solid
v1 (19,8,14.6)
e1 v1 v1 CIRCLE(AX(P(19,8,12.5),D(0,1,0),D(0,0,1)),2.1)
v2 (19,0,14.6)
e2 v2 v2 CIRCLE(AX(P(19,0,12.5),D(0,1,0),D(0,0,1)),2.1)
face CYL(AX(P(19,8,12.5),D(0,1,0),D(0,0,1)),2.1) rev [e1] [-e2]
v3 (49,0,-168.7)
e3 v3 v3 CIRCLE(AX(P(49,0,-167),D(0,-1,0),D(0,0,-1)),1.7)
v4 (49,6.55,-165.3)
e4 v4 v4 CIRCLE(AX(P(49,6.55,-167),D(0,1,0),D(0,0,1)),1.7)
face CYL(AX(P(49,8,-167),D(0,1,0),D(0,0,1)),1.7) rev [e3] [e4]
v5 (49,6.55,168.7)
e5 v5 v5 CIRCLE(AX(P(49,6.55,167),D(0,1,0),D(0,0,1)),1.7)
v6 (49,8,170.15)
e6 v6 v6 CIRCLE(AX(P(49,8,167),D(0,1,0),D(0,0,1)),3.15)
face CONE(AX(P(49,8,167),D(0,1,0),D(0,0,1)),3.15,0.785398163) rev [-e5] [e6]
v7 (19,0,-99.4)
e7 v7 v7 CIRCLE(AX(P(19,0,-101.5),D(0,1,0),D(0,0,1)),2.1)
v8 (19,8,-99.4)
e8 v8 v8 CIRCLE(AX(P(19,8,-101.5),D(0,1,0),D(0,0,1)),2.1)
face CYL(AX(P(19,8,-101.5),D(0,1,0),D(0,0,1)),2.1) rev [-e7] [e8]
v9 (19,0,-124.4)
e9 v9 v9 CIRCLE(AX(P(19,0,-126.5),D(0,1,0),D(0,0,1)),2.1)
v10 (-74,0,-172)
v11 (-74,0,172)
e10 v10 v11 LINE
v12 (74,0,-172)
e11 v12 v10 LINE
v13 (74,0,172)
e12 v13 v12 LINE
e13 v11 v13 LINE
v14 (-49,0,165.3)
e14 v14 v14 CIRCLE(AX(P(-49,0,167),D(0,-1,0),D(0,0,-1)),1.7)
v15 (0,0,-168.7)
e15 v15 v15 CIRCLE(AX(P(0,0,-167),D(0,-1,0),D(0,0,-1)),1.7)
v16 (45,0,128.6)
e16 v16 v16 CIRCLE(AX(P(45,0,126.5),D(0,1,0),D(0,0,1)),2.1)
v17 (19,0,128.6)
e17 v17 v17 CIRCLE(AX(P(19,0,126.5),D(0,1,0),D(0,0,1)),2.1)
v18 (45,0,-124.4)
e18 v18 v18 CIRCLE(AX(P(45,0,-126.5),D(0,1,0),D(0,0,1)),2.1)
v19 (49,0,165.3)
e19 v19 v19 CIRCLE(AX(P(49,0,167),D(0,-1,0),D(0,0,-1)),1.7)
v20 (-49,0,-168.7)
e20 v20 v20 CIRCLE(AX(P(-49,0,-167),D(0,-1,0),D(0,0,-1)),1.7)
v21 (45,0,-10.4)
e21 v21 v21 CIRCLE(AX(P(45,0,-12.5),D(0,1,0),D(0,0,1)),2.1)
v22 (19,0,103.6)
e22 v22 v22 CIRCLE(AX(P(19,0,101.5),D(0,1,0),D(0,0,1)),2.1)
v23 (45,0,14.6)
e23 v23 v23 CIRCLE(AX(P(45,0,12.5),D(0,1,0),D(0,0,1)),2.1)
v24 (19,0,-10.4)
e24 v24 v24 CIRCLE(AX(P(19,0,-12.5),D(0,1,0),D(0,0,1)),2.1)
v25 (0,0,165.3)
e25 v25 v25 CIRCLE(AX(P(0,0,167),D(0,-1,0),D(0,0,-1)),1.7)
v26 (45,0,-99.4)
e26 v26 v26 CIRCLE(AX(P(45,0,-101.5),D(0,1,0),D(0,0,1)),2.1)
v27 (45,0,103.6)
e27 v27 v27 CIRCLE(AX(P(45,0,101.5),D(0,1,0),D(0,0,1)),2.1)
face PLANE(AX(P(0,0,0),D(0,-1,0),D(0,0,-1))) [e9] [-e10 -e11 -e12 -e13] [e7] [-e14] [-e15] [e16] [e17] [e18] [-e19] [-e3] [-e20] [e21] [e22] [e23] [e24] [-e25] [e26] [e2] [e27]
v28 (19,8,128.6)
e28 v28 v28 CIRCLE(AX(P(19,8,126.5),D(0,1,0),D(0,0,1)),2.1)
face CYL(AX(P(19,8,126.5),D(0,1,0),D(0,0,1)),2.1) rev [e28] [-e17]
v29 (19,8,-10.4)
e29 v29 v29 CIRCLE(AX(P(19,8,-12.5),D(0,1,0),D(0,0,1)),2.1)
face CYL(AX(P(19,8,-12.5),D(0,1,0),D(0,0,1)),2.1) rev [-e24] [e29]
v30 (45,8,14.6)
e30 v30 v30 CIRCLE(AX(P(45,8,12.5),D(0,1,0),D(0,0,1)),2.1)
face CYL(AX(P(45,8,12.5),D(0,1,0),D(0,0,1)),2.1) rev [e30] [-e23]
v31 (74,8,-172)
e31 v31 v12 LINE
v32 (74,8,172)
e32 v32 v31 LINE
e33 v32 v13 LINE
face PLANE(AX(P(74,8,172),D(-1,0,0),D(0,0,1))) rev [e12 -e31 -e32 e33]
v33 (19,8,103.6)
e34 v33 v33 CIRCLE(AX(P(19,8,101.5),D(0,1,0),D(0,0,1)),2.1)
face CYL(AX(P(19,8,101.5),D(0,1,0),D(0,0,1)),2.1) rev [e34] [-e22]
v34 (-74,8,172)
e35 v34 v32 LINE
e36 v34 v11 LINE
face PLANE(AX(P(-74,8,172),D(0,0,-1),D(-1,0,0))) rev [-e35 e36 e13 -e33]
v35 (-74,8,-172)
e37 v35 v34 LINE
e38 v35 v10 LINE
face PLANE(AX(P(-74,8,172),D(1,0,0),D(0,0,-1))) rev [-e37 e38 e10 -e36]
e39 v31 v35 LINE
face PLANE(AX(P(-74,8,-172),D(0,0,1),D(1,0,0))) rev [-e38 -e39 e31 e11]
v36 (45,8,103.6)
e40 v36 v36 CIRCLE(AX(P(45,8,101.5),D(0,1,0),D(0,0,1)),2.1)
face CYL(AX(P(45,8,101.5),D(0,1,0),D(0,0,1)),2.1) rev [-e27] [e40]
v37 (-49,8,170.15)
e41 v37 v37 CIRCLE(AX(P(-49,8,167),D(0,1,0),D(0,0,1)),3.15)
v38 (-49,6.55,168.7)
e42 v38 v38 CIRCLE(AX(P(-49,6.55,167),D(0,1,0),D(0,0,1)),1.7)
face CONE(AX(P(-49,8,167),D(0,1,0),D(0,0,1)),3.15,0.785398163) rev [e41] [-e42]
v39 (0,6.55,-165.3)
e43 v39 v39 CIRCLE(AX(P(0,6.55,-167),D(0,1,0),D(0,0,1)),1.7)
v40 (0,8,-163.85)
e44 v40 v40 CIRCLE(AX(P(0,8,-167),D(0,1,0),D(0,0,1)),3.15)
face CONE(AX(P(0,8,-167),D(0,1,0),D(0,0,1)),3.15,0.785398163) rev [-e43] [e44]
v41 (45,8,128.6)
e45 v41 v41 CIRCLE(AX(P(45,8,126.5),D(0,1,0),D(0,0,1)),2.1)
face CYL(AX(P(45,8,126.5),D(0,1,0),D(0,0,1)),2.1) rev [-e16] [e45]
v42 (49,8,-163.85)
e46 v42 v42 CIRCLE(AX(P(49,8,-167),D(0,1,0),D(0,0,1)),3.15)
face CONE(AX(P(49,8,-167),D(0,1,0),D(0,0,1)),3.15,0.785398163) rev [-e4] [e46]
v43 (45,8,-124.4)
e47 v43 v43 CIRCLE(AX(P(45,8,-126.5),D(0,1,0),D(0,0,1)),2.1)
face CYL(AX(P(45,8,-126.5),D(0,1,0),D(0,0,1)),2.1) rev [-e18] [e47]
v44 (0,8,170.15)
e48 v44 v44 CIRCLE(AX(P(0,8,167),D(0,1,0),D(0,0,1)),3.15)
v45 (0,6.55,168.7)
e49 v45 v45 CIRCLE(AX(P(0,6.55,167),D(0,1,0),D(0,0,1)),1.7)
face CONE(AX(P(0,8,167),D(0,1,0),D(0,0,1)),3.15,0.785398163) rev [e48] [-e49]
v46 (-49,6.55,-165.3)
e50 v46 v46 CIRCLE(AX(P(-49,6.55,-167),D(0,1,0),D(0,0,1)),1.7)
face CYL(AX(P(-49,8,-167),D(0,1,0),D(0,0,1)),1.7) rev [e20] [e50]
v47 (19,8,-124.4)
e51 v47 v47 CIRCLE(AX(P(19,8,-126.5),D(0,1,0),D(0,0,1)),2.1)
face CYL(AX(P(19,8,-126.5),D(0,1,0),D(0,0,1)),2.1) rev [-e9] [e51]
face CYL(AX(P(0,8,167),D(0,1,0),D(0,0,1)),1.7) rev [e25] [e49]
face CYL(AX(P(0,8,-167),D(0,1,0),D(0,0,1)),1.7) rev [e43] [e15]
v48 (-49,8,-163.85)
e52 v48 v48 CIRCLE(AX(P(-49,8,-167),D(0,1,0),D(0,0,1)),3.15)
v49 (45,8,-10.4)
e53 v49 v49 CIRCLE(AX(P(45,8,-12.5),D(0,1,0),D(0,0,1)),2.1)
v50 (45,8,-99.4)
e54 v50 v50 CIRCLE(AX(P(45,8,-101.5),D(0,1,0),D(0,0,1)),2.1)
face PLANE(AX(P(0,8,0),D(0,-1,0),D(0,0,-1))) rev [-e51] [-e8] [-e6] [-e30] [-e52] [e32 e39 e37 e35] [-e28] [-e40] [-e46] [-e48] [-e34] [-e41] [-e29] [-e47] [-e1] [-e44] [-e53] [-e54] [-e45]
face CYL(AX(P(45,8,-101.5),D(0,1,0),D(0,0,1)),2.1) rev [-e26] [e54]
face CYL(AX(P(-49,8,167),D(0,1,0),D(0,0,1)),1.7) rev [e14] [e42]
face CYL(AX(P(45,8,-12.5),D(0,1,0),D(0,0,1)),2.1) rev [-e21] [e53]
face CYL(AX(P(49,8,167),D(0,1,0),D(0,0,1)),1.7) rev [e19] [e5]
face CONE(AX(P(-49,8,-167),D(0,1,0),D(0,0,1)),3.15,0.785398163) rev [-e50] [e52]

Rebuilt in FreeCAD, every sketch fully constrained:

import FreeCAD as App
import Part
import Sketcher
from FreeCAD import Vector
Q = App.Units.Quantity


def add_polygon(sketch, points):
    """Adds a closed chain of lines whose ends are joined by coincident constraints."""
    first, n = sketch.GeometryCount, len(points)
    for a, b in zip(points, points[1:] + points[:1]):
        sketch.addGeometry(Part.LineSegment(App.Vector(*a, 0), App.Vector(*b, 0)), False)
    for i in range(n):
        sketch.addConstraint(Sketcher.Constraint("Coincident", first + i, 2, first + (i + 1) % n, 1))

doc = App.newDocument("Part")
params = doc.addObject("Spreadsheet::Sheet", "Params")
for row, (alias, value) in enumerate([
    ("sketch1_width", "148 mm"),
    ("sketch1_height", "344 mm"),
    ("pad1_length", "8 mm"),
    ("sketch2_width", "13.55 mm"),
    ("sketch2_height", "3.15 mm"),
    ("groove_angle", "360 deg"),
    ("linearpattern_pitch", "49 mm"),
    ("linearpattern2_pitch", "98 mm"),
    ("sketch3_width", "13.55 mm"),
    ("sketch3_height", "3.15 mm"),
    ("groove2_angle", "360 deg"),
    ("sketch4_width", "13.55 mm"),
    ("sketch4_height", "3.15 mm"),
    ("groove3_angle", "360 deg"),
    ("sketch5_diameter", "4.2 mm"),
    ("hole_diameter", "4.2 mm"),
    ("linearpattern3_pitch", "114 mm"),
    ("linearpattern4_pitch", "114 mm"),
], start=1):
    params.set(f"A{row}", alias)
    params.set(f"B{row}", "=" + value)
    params.setAlias(f"B{row}", alias)

body = doc.addObject("PartDesign::Body", "Body")

# Sketch on XZ plane
sketch1 = body.newObject("Sketcher::SketchObject", "Sketch")
sketch1.AttachmentSupport = (doc.getObject("XZ_Plane"), [""])
sketch1.MapMode = "FlatFace"
add_polygon(sketch1, [(-74, -172), (-74, 172), (74, 172), (74, -172)])  # lines 0-3
sketch1.addConstraint([
    Sketcher.Constraint("Vertical", 0),
    Sketcher.Constraint("Horizontal", 1),
    Sketcher.Constraint("Vertical", 2),
    Sketcher.Constraint("Horizontal", 3),
    Sketcher.Constraint("Symmetric", 0, 2, 2, 2, -1, 1),
    Sketcher.Constraint("DistanceX", 1, 1, 1, 2, Q("148 mm")),
    Sketcher.Constraint("DistanceY", 0, 1, 0, 2, Q("344 mm")),
])
sketch1.setExpression("Constraints[9]", "Params.sketch1_width")
sketch1.setExpression("Constraints[10]", "Params.sketch1_height")
pad1 = body.newObject("PartDesign::Pad", "Pad")
pad1.Profile = sketch1
pad1.setExpression("Length", "Params.pad1_length")
pad1.Reversed = True

# Sketch on YZ plane
sketch2 = body.newObject("Sketcher::SketchObject", "Sketch001")
sketch2.AttachmentSupport = (doc.getObject("YZ_Plane"), [""])
sketch2.MapMode = "FlatFace"
sketch2.AttachmentOffset = App.Placement(Vector(0, 0, -49), App.Rotation())
add_polygon(sketch2, [(-8, 167), (8, 167), (8, 170.2), (6.5, 168.7), (-7, 168.7)])  # lines 0-4
sketch2.addGeometry(Part.LineSegment(Vector(8, 167, 0), Vector(-8, 167, 0)), True)  # axis
sketch2.addConstraint([
    Sketcher.Constraint("Horizontal", 0),
    Sketcher.Constraint("Vertical", 1),
    Sketcher.Constraint("Horizontal", 3),
    Sketcher.Constraint("Horizontal", 5),
    Sketcher.Constraint("Coincident", 5, 1, 0, 2),
    Sketcher.Constraint("Equal", 0, 5),
    Sketcher.Constraint("Angle", 2, Q("-135 deg")),
    Sketcher.Constraint("Angle", 4, Q("-121 deg")),
    Sketcher.Constraint("DistanceX", -1, 1, 0, 2, Q("8 mm")),
    Sketcher.Constraint("DistanceY", -1, 1, 0, 2, Q("167 mm")),
    Sketcher.Constraint("DistanceX", 3, 2, -1, 1, Q("7 mm")),
    Sketcher.Constraint("DistanceX", 3, 2, 3, 1, Q("13.55 mm")),
    Sketcher.Constraint("DistanceY", 1, 1, 1, 2, Q("3.15 mm")),
])
sketch2.setExpression("Constraints[16]", "Params.sketch2_width")
sketch2.setExpression("Constraints[17]", "Params.sketch2_height")
groove = body.newObject("PartDesign::Groove", "Groove")
groove.Profile = sketch2
groove.ReferenceAxis = (sketch2, ["Axis0"])
groove.setExpression("Angle", "Params.groove_angle")
doc.recompute()

linearpattern = body.newObject("PartDesign::LinearPattern", "LinearPattern")
linearpattern.Originals = [groove]
linearpattern.Direction = (doc.getObject("X_Axis"), [""])
linearpattern.Mode = "offset"
linearpattern.setExpression("Offset", "Params.linearpattern_pitch")
linearpattern.Occurrences = 2
body.Tip = linearpattern
doc.recompute()

linearpattern2 = body.newObject("PartDesign::LinearPattern", "LinearPattern001")
linearpattern2.Originals = [groove]
linearpattern2.Direction = (doc.getObject("X_Axis"), [""])
linearpattern2.Mode = "offset"
linearpattern2.setExpression("Offset", "Params.linearpattern2_pitch")
linearpattern2.Occurrences = 2
body.Tip = linearpattern2
doc.recompute()

mirrored = body.newObject("PartDesign::Mirrored", "Mirrored")
mirrored.Originals = [groove]
mirrored.MirrorPlane = (doc.getObject("XY_Plane"), [""])
body.Tip = mirrored

# Sketch on YZ plane
sketch3 = body.newObject("Sketcher::SketchObject", "Sketch002")
sketch3.AttachmentSupport = (doc.getObject("YZ_Plane"), [""])
sketch3.MapMode = "FlatFace"
add_polygon(sketch3, [(8, -167), (-8, -167), (-7, -168.7), (6.5, -168.7), (8, -170.2)])  # lines 0-4
sketch3.addGeometry(Part.LineSegment(Vector(-8, -167, 0), Vector(8, -167, 0)), True)  # axis
sketch3.addConstraint([
    Sketcher.Constraint("Horizontal", 0),
    Sketcher.Constraint("Horizontal", 2),
    Sketcher.Constraint("Vertical", 4),
    Sketcher.Constraint("Horizontal", 5),
    Sketcher.Constraint("Coincident", 5, 1, 0, 2),
    Sketcher.Constraint("Vertical", 3, 2, 5, 2),
    Sketcher.Constraint("Angle", 1, Q("-59 deg")),
    Sketcher.Constraint("Angle", 3, Q("-45 deg")),
    Sketcher.Constraint("DistanceY", 0, 2, -1, 1, Q("167 mm")),
    Sketcher.Constraint("DistanceX", 1, 2, -1, 1, Q("7 mm")),
    Sketcher.Constraint("DistanceX", -1, 1, 3, 2, Q("8 mm")),
    Sketcher.Constraint("DistanceX", 2, 1, 2, 2, Q("13.55 mm")),
    Sketcher.Constraint("DistanceY", 4, 1, 4, 2, Q("3.15 mm")),
])
sketch3.setExpression("Constraints[16]", "Params.sketch3_width")
sketch3.setExpression("Constraints[17]", "Params.sketch3_height")
groove2 = body.newObject("PartDesign::Groove", "Groove001")
groove2.Profile = sketch3
groove2.ReferenceAxis = (sketch3, ["Axis0"])
groove2.setExpression("Angle", "Params.groove2_angle")

# Sketch on YZ plane
sketch4 = body.newObject("Sketcher::SketchObject", "Sketch003")
sketch4.AttachmentSupport = (doc.getObject("YZ_Plane"), [""])
sketch4.MapMode = "FlatFace"
sketch4.AttachmentOffset = App.Placement(Vector(0, 0, 49), App.Rotation())
add_polygon(sketch4, [(8, -167), (-8, -167), (-7, -168.7), (6.5, -168.7), (8, -170.2)])  # lines 0-4
sketch4.addGeometry(Part.LineSegment(Vector(-8, -167, 0), Vector(8, -167, 0)), True)  # axis
sketch4.addConstraint([
    Sketcher.Constraint("Horizontal", 0),
    Sketcher.Constraint("Horizontal", 2),
    Sketcher.Constraint("Vertical", 4),
    Sketcher.Constraint("Horizontal", 5),
    Sketcher.Constraint("Coincident", 5, 1, 0, 2),
    Sketcher.Constraint("Vertical", 3, 2, 5, 2),
    Sketcher.Constraint("Angle", 1, Q("-59 deg")),
    Sketcher.Constraint("Angle", 3, Q("-45 deg")),
    Sketcher.Constraint("DistanceY", 0, 2, -1, 1, Q("167 mm")),
    Sketcher.Constraint("DistanceX", 1, 2, -1, 1, Q("7 mm")),
    Sketcher.Constraint("DistanceX", -1, 1, 3, 2, Q("8 mm")),
    Sketcher.Constraint("DistanceX", 2, 1, 2, 2, Q("13.55 mm")),
    Sketcher.Constraint("DistanceY", 4, 1, 4, 2, Q("3.15 mm")),
])
sketch4.setExpression("Constraints[16]", "Params.sketch4_width")
sketch4.setExpression("Constraints[17]", "Params.sketch4_height")
groove3 = body.newObject("PartDesign::Groove", "Groove002")
groove3.Profile = sketch4
groove3.ReferenceAxis = (sketch4, ["Axis0"])
groove3.setExpression("Angle", "Params.groove3_angle")

# Sketch on XZ plane
sketch5 = body.newObject("Sketcher::SketchObject", "Sketch004")
sketch5.AttachmentSupport = (doc.getObject("XZ_Plane"), [""])
sketch5.MapMode = "FlatFace"
sketch5.AttachmentOffset = App.Placement(Vector(0, 0, -8), App.Rotation())
sketch5.addGeometry([
    Part.Circle(Vector(45, -12.5, 0), Vector(0, 0, 1), 2.1),
    Part.Circle(Vector(19, -12.5, 0), Vector(0, 0, 1), 2.1),
    Part.Circle(Vector(19, 12.5, 0), Vector(0, 0, 1), 2.1),
    Part.Circle(Vector(45, 12.5, 0), Vector(0, 0, 1), 2.1),
], False)
sketch5.addConstraint([
    Sketcher.Constraint("Equal", 0, 1),
    Sketcher.Constraint("Equal", 1, 2),
    Sketcher.Constraint("Equal", 2, 3),
    Sketcher.Constraint("Symmetric", 1, 3, 2, 3, -1),
    Sketcher.Constraint("Symmetric", 0, 3, 3, 3, -1),
    Sketcher.Constraint("Horizontal", 0, 3, 1, 3),
    Sketcher.Constraint("Diameter", 0, Q("4.2 mm")),
    Sketcher.Constraint("DistanceX", -1, 1, 0, 3, Q("45 mm")),
    Sketcher.Constraint("DistanceX", -1, 1, 1, 3, Q("19 mm")),
    Sketcher.Constraint("DistanceY", 1, 3, 2, 3, Q("25 mm")),
])
sketch5.setExpression("Constraints[6]", "Params.sketch5_diameter")
doc.recompute()
hole = body.newObject("PartDesign::Hole", "Hole")
hole.Profile = sketch5
hole.ThreadType = "None"
hole.setExpression("Diameter", "Params.hole_diameter")
hole.DepthType = "ThroughAll"
hole.Reversed = True
doc.recompute()

linearpattern3 = body.newObject("PartDesign::LinearPattern", "LinearPattern002")
linearpattern3.Originals = [hole]
linearpattern3.Direction = (doc.getObject("Z_Axis"), [""])
linearpattern3.Mode = "offset"
linearpattern3.setExpression("Offset", "Params.linearpattern3_pitch")
linearpattern3.Occurrences = 2
body.Tip = linearpattern3
doc.recompute()

linearpattern4 = body.newObject("PartDesign::LinearPattern", "LinearPattern003")
linearpattern4.Originals = [hole]
linearpattern4.Direction = (doc.getObject("Z_Axis"), [""])
linearpattern4.Mode = "offset"
linearpattern4.setExpression("Offset", "Params.linearpattern4_pitch")
linearpattern4.Occurrences = 2
linearpattern4.Reversed = True
body.Tip = linearpattern4

doc.recompute()
